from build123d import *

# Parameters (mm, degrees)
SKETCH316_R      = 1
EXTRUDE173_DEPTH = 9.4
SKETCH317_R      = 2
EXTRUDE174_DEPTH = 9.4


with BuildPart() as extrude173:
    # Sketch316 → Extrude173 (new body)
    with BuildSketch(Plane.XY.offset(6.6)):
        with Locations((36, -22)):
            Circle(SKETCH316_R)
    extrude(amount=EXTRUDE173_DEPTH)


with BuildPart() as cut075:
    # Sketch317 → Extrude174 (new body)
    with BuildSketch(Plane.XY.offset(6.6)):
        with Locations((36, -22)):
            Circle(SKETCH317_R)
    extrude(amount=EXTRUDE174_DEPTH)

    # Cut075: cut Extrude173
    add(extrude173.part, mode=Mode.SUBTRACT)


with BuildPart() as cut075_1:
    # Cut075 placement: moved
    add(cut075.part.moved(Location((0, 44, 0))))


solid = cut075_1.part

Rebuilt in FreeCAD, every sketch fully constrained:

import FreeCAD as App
import Part
import Sketcher

V = App.Vector

doc = App.newDocument("Part")
body = doc.addObject("PartDesign::Body", "Body")

# Sketch on XY plane
sketch1 = body.newObject("Sketcher::SketchObject", "Sketch")
sketch1.AttachmentSupport = (doc.getObject("XY_Plane"), [""])
sketch1.MapMode = "FlatFace"
sketch1.AttachmentOffset = App.Placement(V(0, 0, 6.6), App.Rotation())
sketch1.addGeometry(Part.Circle(V(36, -22, 0), V(0, 0, 1), 1), False)
sketch1.addConstraint([
    Sketcher.Constraint("Diameter", 0, 2.0),
    Sketcher.Constraint("DistanceX", -1, 1, 0, 3, 36.0),
    Sketcher.Constraint("DistanceY", 0, 3, -1, 1, 22.0),
])
pad1 = body.newObject("PartDesign::Pad", "Pad")
pad1.Profile = sketch1
pad1.Length = 9.4
body2 = doc.addObject("PartDesign::Body", "Body001")

# Sketch on XY plane
sketch2 = body2.newObject("Sketcher::SketchObject", "Sketch001")
sketch2.AttachmentSupport = (doc.getObject("XY_Plane001"), [""])
sketch2.MapMode = "FlatFace"
sketch2.AttachmentOffset = App.Placement(V(0, 0, 6.6), App.Rotation())
sketch2.addGeometry(Part.Circle(V(36, -22, 0), V(0, 0, 1), 2), False)
sketch2.addConstraint([
    Sketcher.Constraint("Diameter", 0, 4.0),
    Sketcher.Constraint("DistanceX", -1, 1, 0, 3, 36.0),
    Sketcher.Constraint("DistanceY", 0, 3, -1, 1, 22.0),
])
pad2 = body2.newObject("PartDesign::Pad", "Pad001")
pad2.Profile = sketch2
pad2.Length = 9.4
doc.recompute()

boolean = body2.newObject("PartDesign::Boolean", "Boolean")
boolean.Type = "Cut"
boolean.addObjects([body])
body3 = doc.addObject("PartDesign::Body", "Body002")
doc.recompute()

body2.Placement = App.Placement(V(0, 44, 0), App.Rotation(V(0, 0, 1), 0))
boolean2 = body3.newObject("PartDesign::Boolean", "Boolean001")
boolean2.Type = "Fuse"
boolean2.addObjects([body2])

doc.recompute()
